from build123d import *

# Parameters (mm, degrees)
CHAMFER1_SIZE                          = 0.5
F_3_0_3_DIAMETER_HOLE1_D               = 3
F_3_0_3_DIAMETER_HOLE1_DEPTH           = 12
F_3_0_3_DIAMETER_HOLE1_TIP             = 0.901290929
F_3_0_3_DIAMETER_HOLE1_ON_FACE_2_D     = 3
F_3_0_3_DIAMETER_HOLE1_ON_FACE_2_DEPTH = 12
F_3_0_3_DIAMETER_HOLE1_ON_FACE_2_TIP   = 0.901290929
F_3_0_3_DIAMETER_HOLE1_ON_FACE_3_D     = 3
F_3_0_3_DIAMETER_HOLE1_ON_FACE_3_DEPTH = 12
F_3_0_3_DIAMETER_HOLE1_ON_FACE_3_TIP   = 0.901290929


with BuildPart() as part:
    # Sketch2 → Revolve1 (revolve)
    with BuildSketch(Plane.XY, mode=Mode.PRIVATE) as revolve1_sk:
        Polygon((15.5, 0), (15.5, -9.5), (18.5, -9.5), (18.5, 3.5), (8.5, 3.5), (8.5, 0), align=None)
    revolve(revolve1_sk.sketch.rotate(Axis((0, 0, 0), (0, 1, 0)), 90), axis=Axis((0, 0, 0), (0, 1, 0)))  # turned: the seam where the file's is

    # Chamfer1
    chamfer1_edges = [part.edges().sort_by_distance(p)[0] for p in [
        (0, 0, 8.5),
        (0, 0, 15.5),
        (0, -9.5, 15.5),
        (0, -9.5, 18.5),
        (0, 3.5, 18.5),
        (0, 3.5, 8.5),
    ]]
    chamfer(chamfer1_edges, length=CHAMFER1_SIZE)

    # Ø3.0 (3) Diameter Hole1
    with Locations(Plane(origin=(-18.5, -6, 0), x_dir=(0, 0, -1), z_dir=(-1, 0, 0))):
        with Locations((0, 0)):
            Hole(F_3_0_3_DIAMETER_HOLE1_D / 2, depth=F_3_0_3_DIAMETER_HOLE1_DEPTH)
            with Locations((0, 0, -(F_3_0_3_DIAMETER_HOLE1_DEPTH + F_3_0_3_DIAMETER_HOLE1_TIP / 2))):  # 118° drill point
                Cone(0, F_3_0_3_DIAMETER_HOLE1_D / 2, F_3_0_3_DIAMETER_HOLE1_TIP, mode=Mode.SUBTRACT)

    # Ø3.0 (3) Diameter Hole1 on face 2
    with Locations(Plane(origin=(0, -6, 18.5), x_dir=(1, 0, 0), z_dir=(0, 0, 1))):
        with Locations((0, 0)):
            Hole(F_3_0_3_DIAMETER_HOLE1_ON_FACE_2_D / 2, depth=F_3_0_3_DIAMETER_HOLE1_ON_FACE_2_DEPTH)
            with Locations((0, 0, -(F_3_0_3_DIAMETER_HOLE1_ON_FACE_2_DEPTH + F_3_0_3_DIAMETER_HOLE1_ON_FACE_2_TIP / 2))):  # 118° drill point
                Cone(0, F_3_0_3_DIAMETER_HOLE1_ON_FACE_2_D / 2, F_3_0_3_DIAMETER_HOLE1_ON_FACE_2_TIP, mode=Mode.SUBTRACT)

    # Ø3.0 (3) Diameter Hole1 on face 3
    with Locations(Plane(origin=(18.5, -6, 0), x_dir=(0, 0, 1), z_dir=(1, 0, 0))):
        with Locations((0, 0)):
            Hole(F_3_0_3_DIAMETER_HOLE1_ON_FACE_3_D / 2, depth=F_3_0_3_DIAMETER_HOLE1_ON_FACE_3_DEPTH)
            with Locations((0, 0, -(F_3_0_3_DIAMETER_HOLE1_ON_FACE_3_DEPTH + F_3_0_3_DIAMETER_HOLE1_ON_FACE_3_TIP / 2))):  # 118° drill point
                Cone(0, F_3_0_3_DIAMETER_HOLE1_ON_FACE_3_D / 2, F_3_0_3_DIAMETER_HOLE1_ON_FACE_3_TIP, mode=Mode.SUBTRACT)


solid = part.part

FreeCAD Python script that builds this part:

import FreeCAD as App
import Part
import Sketcher
from FreeCAD import Vector


def edges_at(feature, points):
    """Names of the edges that pass closest to the given points."""
    edges = feature.Shape.Edges
    near = lambda p: min(range(len(edges)), key=lambda i: edges[i].distToShape(Part.Vertex(*p))[0])
    return sorted({f"Edge{near(p) + 1}" for p in points})


def add_polygon(sketch, points):
    """Adds a closed chain of lines whose ends are joined by coincident constraints."""
    first, n = sketch.GeometryCount, len(points)
    for a, b in zip(points, points[1:] + points[:1]):
        sketch.addGeometry(Part.LineSegment(App.Vector(*a, 0), App.Vector(*b, 0)), False)
    for i in range(n):
        sketch.addConstraint(Sketcher.Constraint("Coincident", first + i, 2, first + (i + 1) % n, 1))

doc = App.newDocument("Part")
body = doc.addObject("PartDesign::Body", "Body")

# Sketch on XY plane
sketch1 = body.newObject("Sketcher::SketchObject", "Sketch")
sketch1.AttachmentSupport = (doc.getObject("XY_Plane"), [""])
sketch1.MapMode = "FlatFace"
add_polygon(sketch1, [(15.5, 0), (15.5, -9.5), (18.5, -9.5), (18.5, 3.5), (8.5, 3.5), (8.5, 0)])  # lines 0-5
sketch1.addConstraint([
    Sketcher.Constraint("Vertical", 0),
    Sketcher.Constraint("Horizontal", 1),
    Sketcher.Constraint("Vertical", 2),
    Sketcher.Constraint("Horizontal", 3),
    Sketcher.Constraint("Vertical", 4),
    Sketcher.Constraint("Horizontal", 5),
    Sketcher.Constraint("PointOnObject", 4, 2, -1),
    Sketcher.Constraint("DistanceX", 1, 1, 1, 2, 3.0),
    Sketcher.Constraint("DistanceX", 3, 2, 3, 1, 10.0),
    Sketcher.Constraint("DistanceY", 2, 1, 2, 2, 13.0),
    Sketcher.Constraint("DistanceY", 0, 2, 0, 1, 9.5),
    Sketcher.Constraint("DistanceX", -1, 1, 0, 2, 15.5),
])
revolution = body.newObject("PartDesign::Revolution", "Revolution")
revolution.Profile = sketch1
revolution.ReferenceAxis = (sketch1, ["V_Axis"])
revolution.Angle = 360
doc.recompute()

chamfer = body.newObject("PartDesign::Chamfer", "Chamfer")
chamfer.Base = (revolution, edges_at(revolution, [
    (0, 0, 8.5),
    (0, 0, 15.5),
    (0, -9.5, 15.5),
    (0, -9.5, 18.5),
    (0, 3.5, 18.5),
    (0, 3.5, 8.5),
]))
chamfer.Size = 0.5

# Sketch on YZ plane
sketch2 = body.newObject("Sketcher::SketchObject", "Sketch001")
sketch2.AttachmentSupport = (doc.getObject("YZ_Plane"), [""])
sketch2.MapMode = "FlatFace"
sketch2.AttachmentOffset = App.Placement(Vector(0, 0, -18.5), App.Rotation())
sketch2.addGeometry(Part.Circle(Vector(-6, 0, 0), Vector(0, 0, 1), 1.5), False)
sketch2.addConstraint([
    Sketcher.Constraint("PointOnObject", 0, 3, -1),
    Sketcher.Constraint("Diameter", 0, 3.0),
    Sketcher.Constraint("DistanceX", 0, 3, -1, 1, 6.0),
])
doc.recompute()
hole = body.newObject("PartDesign::Hole", "Hole")
hole.Profile = sketch2
hole.ThreadType = "None"
hole.Diameter = 3
hole.DepthType = "Dimension"
hole.Depth = 12
hole.DrillPoint = "Angled"
hole.DrillPointAngle = 118
hole.Reversed = True

# Sketch on XY plane
sketch3 = body.newObject("Sketcher::SketchObject", "Sketch002")
sketch3.AttachmentSupport = (doc.getObject("XY_Plane"), [""])
sketch3.MapMode = "FlatFace"
sketch3.AttachmentOffset = App.Placement(Vector(0, 0, 18.5), App.Rotation())
sketch3.addGeometry(Part.Circle(Vector(0, -6, 0), Vector(0, 0, 1), 1.5), False)
sketch3.addConstraint([
    Sketcher.Constraint("PointOnObject", 0, 3, -2),
    Sketcher.Constraint("Diameter", 0, 3.0),
    Sketcher.Constraint("DistanceY", 0, 3, -1, 1, 6.0),
])
doc.recompute()
hole2 = body.newObject("PartDesign::Hole", "Hole001")
hole2.Profile = sketch3
hole2.ThreadType = "None"
hole2.Diameter = 3
hole2.DepthType = "Dimension"
hole2.Depth = 12
hole2.DrillPoint = "Angled"
hole2.DrillPointAngle = 118

# Sketch on YZ plane
sketch4 = body.newObject("Sketcher::SketchObject", "Sketch003")
sketch4.AttachmentSupport = (doc.getObject("YZ_Plane"), [""])
sketch4.MapMode = "FlatFace"
sketch4.AttachmentOffset = App.Placement(Vector(0, 0, 18.5), App.Rotation())
sketch4.addGeometry(Part.Circle(Vector(-6, 0, 0), Vector(0, 0, 1), 1.5), False)
sketch4.addConstraint([
    Sketcher.Constraint("PointOnObject", 0, 3, -1),
    Sketcher.Constraint("Diameter", 0, 3.0),
    Sketcher.Constraint("DistanceX", 0, 3, -1, 1, 6.0),
])
doc.recompute()
hole3 = body.newObject("PartDesign::Hole", "Hole002")
hole3.Profile = sketch4
hole3.ThreadType = "None"
hole3.Diameter = 3
hole3.DepthType = "Dimension"
hole3.Depth = 12
hole3.DrillPoint = "Angled"
hole3.DrillPointAngle = 118

doc.recompute()
